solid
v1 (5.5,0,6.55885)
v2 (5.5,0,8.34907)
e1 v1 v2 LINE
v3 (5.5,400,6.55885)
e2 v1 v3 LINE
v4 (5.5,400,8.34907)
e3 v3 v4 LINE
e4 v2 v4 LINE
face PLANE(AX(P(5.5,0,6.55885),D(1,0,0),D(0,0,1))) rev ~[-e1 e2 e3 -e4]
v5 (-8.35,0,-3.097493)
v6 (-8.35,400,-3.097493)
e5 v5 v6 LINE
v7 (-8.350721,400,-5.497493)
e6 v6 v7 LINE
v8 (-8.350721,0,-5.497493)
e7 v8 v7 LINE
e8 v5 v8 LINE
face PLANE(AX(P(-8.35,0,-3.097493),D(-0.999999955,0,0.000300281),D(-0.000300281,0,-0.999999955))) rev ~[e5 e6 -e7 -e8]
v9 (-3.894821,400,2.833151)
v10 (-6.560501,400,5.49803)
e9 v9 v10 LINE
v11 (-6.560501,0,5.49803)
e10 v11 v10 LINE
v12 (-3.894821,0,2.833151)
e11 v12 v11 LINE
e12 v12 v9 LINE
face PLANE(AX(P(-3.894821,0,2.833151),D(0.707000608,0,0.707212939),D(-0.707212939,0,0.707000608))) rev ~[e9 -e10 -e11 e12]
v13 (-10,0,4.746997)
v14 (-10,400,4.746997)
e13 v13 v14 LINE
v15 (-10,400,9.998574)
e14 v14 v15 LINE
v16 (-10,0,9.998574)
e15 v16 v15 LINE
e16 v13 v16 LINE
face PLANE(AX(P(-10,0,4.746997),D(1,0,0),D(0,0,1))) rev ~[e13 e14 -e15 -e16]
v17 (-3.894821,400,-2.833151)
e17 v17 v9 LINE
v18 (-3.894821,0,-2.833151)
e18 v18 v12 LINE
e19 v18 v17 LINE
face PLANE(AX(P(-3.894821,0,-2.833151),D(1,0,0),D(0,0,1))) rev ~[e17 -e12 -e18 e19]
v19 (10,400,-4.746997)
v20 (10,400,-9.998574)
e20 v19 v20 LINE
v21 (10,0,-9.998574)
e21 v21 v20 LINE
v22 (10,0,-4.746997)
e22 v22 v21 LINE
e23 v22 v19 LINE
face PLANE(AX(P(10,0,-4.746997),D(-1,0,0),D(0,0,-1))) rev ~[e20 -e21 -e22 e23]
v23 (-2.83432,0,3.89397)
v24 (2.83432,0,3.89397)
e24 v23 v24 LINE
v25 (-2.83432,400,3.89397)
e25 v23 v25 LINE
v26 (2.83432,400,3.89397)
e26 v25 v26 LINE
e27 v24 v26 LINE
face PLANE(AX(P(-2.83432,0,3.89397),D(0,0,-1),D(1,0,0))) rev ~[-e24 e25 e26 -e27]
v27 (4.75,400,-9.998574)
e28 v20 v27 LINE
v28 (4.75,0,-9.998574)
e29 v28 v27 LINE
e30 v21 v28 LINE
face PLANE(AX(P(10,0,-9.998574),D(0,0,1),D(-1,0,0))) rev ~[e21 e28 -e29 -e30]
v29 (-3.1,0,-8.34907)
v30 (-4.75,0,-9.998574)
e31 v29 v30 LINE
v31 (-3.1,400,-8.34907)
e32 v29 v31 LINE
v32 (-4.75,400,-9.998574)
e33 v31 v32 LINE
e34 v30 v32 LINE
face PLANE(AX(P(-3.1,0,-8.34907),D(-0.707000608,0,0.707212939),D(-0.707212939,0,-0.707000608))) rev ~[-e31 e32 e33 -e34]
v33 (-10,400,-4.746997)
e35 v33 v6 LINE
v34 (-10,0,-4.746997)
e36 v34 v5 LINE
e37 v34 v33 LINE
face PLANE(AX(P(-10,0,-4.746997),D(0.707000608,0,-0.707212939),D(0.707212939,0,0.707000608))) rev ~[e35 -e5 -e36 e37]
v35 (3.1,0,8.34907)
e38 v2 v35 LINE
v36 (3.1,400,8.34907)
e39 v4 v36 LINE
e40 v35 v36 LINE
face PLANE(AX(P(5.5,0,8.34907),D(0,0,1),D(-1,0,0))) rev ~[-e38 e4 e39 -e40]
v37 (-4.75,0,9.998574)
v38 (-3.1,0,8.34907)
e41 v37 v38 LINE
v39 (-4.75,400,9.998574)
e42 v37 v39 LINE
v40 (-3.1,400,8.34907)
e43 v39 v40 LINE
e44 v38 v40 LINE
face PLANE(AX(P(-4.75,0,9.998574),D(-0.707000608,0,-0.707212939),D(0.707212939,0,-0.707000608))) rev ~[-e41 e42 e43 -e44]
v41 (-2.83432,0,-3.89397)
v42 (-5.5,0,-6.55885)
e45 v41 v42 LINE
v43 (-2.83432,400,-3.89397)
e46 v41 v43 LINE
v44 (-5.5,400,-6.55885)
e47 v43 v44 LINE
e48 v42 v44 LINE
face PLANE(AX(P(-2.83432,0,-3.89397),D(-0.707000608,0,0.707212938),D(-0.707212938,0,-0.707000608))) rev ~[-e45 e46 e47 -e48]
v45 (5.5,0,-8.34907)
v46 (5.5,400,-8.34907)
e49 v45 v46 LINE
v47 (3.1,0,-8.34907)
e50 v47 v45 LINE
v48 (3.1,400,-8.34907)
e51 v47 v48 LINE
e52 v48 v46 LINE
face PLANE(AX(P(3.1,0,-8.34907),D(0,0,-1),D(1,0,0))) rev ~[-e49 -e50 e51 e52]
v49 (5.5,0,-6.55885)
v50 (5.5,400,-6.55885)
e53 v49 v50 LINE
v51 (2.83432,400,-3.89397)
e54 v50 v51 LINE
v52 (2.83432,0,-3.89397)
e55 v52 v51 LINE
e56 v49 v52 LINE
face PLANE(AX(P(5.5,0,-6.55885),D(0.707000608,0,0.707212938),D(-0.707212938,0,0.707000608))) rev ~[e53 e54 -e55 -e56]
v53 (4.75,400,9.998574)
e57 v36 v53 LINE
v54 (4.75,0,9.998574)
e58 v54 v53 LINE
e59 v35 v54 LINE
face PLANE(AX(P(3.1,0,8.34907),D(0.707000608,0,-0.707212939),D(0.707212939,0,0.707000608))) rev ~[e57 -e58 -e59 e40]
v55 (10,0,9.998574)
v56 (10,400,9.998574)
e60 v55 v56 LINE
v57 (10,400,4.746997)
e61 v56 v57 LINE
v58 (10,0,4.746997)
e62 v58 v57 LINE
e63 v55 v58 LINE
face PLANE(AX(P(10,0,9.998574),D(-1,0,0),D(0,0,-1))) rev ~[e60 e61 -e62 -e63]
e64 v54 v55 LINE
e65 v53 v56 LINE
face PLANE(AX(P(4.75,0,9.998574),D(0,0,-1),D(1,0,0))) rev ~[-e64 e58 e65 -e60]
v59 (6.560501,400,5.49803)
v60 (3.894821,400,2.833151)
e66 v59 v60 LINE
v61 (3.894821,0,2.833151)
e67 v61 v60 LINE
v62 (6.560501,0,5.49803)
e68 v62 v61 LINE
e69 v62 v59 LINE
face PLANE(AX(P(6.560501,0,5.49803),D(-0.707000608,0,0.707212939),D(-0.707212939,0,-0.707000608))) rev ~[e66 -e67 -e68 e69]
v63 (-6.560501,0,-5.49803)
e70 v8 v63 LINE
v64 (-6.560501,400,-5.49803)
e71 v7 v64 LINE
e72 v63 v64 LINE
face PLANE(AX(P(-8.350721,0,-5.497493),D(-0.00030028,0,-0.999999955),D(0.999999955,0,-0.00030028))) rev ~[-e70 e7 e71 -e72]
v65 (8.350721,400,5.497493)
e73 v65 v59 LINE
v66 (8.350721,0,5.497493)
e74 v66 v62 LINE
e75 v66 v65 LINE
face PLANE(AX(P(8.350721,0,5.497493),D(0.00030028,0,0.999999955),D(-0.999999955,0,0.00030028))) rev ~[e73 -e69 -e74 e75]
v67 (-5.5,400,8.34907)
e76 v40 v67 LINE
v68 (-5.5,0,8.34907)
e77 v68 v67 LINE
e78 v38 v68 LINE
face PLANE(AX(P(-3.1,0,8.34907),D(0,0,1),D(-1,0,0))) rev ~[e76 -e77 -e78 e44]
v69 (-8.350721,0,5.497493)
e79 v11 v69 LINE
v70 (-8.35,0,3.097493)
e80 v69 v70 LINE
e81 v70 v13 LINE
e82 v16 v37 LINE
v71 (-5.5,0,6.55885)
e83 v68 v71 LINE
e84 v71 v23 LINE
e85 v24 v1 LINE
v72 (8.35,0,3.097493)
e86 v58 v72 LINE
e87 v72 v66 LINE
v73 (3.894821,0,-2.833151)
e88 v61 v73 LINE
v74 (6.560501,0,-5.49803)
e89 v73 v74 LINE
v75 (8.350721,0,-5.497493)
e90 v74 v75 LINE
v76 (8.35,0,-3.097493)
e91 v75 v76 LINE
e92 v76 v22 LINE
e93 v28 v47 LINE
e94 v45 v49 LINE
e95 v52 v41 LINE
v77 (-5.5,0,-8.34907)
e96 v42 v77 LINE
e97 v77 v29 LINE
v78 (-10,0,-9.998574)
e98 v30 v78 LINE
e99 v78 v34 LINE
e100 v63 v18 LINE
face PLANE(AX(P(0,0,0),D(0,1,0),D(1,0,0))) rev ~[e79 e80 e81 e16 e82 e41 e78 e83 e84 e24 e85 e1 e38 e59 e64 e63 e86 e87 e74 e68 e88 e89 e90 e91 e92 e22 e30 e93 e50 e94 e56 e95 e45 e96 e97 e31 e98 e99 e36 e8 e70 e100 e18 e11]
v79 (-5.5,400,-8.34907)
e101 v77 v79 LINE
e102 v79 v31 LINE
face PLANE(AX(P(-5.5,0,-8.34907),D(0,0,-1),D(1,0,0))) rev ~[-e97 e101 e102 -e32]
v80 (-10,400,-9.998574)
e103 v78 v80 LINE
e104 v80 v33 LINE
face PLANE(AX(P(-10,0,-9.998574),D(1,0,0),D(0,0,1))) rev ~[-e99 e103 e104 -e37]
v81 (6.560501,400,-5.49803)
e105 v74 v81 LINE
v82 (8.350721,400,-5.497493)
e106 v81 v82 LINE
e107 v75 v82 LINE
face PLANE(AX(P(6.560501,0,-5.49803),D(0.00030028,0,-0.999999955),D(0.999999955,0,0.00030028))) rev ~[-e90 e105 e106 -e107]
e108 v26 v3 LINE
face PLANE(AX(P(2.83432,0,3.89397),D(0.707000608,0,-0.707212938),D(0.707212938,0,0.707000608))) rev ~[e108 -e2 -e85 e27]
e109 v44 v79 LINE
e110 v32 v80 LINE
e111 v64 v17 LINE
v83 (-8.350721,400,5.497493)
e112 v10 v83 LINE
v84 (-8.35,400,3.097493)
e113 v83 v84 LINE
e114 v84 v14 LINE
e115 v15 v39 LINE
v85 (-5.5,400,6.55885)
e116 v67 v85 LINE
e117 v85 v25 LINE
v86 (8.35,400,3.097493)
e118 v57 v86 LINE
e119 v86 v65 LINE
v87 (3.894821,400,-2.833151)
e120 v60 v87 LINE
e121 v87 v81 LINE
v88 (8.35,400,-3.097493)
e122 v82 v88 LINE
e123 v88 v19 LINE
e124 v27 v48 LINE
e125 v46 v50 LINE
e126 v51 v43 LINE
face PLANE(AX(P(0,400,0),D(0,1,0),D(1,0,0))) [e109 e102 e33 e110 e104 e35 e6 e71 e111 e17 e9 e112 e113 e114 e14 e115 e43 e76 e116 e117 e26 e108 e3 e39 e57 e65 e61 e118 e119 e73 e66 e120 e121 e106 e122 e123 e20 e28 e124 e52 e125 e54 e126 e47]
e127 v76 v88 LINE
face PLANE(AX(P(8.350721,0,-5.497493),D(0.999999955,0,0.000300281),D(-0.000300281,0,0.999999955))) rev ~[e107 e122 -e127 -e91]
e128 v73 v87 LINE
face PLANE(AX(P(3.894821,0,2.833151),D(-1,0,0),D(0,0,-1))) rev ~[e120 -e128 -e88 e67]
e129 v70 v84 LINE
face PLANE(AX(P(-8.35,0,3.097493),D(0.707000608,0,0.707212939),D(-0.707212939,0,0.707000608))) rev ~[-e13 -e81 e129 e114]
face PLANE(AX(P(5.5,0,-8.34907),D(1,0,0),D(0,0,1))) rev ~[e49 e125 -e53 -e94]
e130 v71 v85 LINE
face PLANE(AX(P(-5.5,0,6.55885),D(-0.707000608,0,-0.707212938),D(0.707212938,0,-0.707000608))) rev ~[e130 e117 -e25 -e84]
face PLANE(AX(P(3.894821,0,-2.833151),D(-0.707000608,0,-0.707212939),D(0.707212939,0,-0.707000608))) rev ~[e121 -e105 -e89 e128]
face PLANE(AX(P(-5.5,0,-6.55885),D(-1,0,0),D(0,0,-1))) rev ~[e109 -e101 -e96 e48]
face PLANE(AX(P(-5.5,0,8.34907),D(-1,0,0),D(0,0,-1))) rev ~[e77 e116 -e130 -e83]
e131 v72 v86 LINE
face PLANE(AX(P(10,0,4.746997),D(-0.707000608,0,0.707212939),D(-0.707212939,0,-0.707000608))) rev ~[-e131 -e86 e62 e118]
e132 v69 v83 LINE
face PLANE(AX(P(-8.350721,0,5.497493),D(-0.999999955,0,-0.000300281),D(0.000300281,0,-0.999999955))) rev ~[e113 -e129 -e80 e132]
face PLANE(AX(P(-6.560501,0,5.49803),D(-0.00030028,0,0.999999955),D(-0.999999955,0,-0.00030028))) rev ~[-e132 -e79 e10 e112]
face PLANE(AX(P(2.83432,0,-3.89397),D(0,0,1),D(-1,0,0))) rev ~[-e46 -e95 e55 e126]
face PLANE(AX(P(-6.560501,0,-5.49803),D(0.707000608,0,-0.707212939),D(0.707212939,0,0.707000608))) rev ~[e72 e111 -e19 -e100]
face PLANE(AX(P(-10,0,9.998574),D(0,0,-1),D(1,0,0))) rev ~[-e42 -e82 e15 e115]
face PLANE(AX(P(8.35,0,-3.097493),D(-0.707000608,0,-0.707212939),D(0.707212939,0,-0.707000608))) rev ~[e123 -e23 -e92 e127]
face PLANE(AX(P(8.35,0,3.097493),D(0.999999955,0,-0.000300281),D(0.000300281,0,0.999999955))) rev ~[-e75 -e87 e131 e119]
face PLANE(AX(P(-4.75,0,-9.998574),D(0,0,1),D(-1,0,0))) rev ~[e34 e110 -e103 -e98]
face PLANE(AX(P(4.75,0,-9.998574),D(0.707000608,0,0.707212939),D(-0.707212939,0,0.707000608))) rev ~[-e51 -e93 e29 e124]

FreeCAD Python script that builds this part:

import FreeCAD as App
import Part
import Sketcher

V = App.Vector


def add_polygon(sketch, points):
    """Adds a closed chain of lines whose ends are joined by coincident constraints."""
    first, n = sketch.GeometryCount, len(points)
    for a, b in zip(points, points[1:] + points[:1]):
        sketch.addGeometry(Part.LineSegment(App.Vector(*a, 0), App.Vector(*b, 0)), False)
    for i in range(n):
        sketch.addConstraint(Sketcher.Constraint("Coincident", first + i, 2, first + (i + 1) % n, 1))

doc = App.newDocument("Part")
params = doc.addObject("Spreadsheet::Sheet", "Params")
for row, (alias, value) in enumerate([
    ("sketch1_width", "2.4 mm"),
    ("sketch1_length", "2.4 mm"),
    ("sketch1_width2", "5.25 mm"),
    ("pad1_length", "400 mm"),
], start=1):
    params.set(f"A{row}", alias)
    params.set(f"B{row}", "=" + value)
    params.setAlias(f"B{row}", alias)

body = doc.addObject("PartDesign::Body", "Body")

sketch1 = doc.addObject("Sketcher::SketchObject", "Sketch")
body.addObject(sketch1)
sketch1.AttachmentSupport = (doc.XZ_Plane, [""])
sketch1.MapMode = "FlatFace"
add_polygon(sketch1, [(2.83432, -3.89397), (-2.83432, -3.89397), (-5.5, -6.55885), (-5.5, -8.34907), (-3.1, -8.34907), (-4.75, -9.998574), (-10, -9.998574), (-10, -4.746997), (-8.35, -3.097493), (-8.350721, -5.497493), (-6.560501, -5.49803), (-3.894821, -2.833151), (-3.894821, 2.833151), (-6.560501, 5.49803), (-8.350721, 5.497493), (-8.35, 3.097493), (-10, 4.746997), (-10, 9.998574), (-4.75, 9.998574), (-3.1, 8.34907), (-5.5, 8.34907), (-5.5, 6.55885), (-2.83432, 3.89397), (2.83432, 3.89397), (5.5, 6.55885), (5.5, 8.34907), (3.1, 8.34907), (4.75, 9.998574), (10, 9.998574), (10, 4.746997), (8.35, 3.097493), (8.350721, 5.497493), (6.560501, 5.49803), (3.894821, 2.833151), (3.894821, -2.833151), (6.560501, -5.49803), (8.350721, -5.497493), (8.35, -3.097493), (10, -4.746997), (10, -9.998574), (4.75, -9.998574), (3.1, -8.34907), (5.5, -8.34907), (5.5, -6.55885)])
sketch1.addConstraint(Sketcher.Constraint("Horizontal", 0))
sketch1.addConstraint(Sketcher.Constraint("Vertical", 2))
sketch1.addConstraint(Sketcher.Constraint("Horizontal", 3))
sketch1.addConstraint(Sketcher.Constraint("Horizontal", 5))
sketch1.addConstraint(Sketcher.Constraint("Vertical", 6))
sketch1.addConstraint(Sketcher.Constraint("Vertical", 11))
sketch1.addConstraint(Sketcher.Constraint("Vertical", 16))
sketch1.addConstraint(Sketcher.Constraint("Horizontal", 17))
sketch1.addConstraint(Sketcher.Constraint("Horizontal", 19))
sketch1.addConstraint(Sketcher.Constraint("Vertical", 20))
sketch1.addConstraint(Sketcher.Constraint("Horizontal", 22))
sketch1.addConstraint(Sketcher.Constraint("Vertical", 24))
sketch1.addConstraint(Sketcher.Constraint("Horizontal", 25))
sketch1.addConstraint(Sketcher.Constraint("Horizontal", 27))
sketch1.addConstraint(Sketcher.Constraint("Vertical", 28))
sketch1.addConstraint(Sketcher.Constraint("Vertical", 33))
sketch1.addConstraint(Sketcher.Constraint("Vertical", 38))
sketch1.addConstraint(Sketcher.Constraint("Horizontal", 39))
sketch1.addConstraint(Sketcher.Constraint("Horizontal", 41))
sketch1.addConstraint(Sketcher.Constraint("Vertical", 42))
sketch1.addConstraint(Sketcher.Constraint("Symmetric", 0, 2, 22, 2, -1, 1))
sketch1.addConstraint(Sketcher.Constraint("Symmetric", 1, 2, 23, 2, -1, 1))
sketch1.addConstraint(Sketcher.Constraint("Symmetric", 3, 2, 25, 2, -1, 1))
sketch1.addConstraint(Sketcher.Constraint("Symmetric", 4, 2, 26, 2, -1, 1))
sketch1.addConstraint(Sketcher.Constraint("Symmetric", 6, 2, 28, 2, -1, 1))
sketch1.addConstraint(Sketcher.Constraint("Symmetric", 7, 2, 29, 2, -1, 1))
sketch1.addConstraint(Sketcher.Constraint("Symmetric", 8, 2, 30, 2, -1, 1))
sketch1.addConstraint(Sketcher.Constraint("Symmetric", 9, 2, 31, 2, -1, 1))
sketch1.addConstraint(Sketcher.Constraint("Symmetric", 10, 2, 32, 2, -1, 1))
sketch1.addConstraint(Sketcher.Constraint("Symmetric", 12, 2, 34, 2, -1, 1))
sketch1.addConstraint(Sketcher.Constraint("Symmetric", 13, 2, 35, 2, -1, 1))
sketch1.addConstraint(Sketcher.Constraint("Symmetric", 14, 2, 36, 2, -1, 1))
sketch1.addConstraint(Sketcher.Constraint("Symmetric", 15, 2, 37, 2, -1, 1))
sketch1.addConstraint(Sketcher.Constraint("Symmetric", 17, 2, 39, 2, -1, 1))
sketch1.addConstraint(Sketcher.Constraint("Symmetric", 18, 2, 40, 2, -1, 1))
sketch1.addConstraint(Sketcher.Constraint("Symmetric", 20, 2, 42, 2, -1, 1))
sketch1.addConstraint(Sketcher.Constraint("Symmetric", 20, 2, 23, 2, -2))
sketch1.addConstraint(Sketcher.Constraint("Symmetric", 18, 2, 25, 2, -2))
sketch1.addConstraint(Sketcher.Constraint("Symmetric", 17, 2, 26, 2, -2))
sketch1.addConstraint(Sketcher.Constraint("Symmetric", 15, 2, 28, 2, -2))
sketch1.addConstraint(Sketcher.Constraint("Symmetric", 14, 2, 29, 2, -2))
sketch1.addConstraint(Sketcher.Constraint("Symmetric", 13, 2, 30, 2, -2))
sketch1.addConstraint(Sketcher.Constraint("Symmetric", 12, 2, 31, 2, -2))
sketch1.addConstraint(Sketcher.Constraint("Parallel", 1, 4))
sketch1.addConstraint(Sketcher.Constraint("Parallel", 4, 7))
sketch1.addConstraint(Sketcher.Constraint("Perpendicular", 8, 9))
sketch1.addConstraint(Sketcher.Constraint("Parallel", 7, 10))
sketch1.addConstraint(Sketcher.Constraint("Parallel", 12, 15))
sketch1.addConstraint(Sketcher.Constraint("Parallel", 18, 21))
sketch1.addConstraint(Sketcher.Constraint("Parallel", 21, 34))
sketch1.addConstraint(Sketcher.Constraint("Parallel", 40, 43))
sketch1.addConstraint(Sketcher.Constraint("Equal", 4, 7))
sketch1.addConstraint(Sketcher.Constraint("Equal", 1, 10))
sketch1.addConstraint(Sketcher.Constraint("DistanceX", 3, 1, 3, 2, 2.4))
sketch1.addConstraint(Sketcher.Constraint("DistanceX", 5, 2, -1, 1, 10.0))
sketch1.addConstraint(Sketcher.Constraint("Distance", 8, 2.4))
sketch1.addConstraint(Sketcher.Constraint("DistanceX", 5, 2, 5, 1, 5.25))
sketch1.addConstraint(Sketcher.Constraint("DistanceX", 1, 2, -1, 1, 5.5))
sketch1.addConstraint(Sketcher.Constraint("DistanceY", 11, 1, 11, 2, 5.666302))
sketch1.addConstraint(Sketcher.Constraint("DistanceY", 0, 2, 12, 2, 9.392001))
sketch1.addConstraint(Sketcher.Constraint("DistanceX", 0, 2, 0, 1, 5.668641))
sketch1.addConstraint(Sketcher.Constraint("DistanceY", 2, 2, 2, 1, 1.79022))
sketch1.addConstraint(Sketcher.Constraint("DistanceX", 9, 2, -1, 1, 6.560501))
sketch1.addConstraint(Sketcher.Constraint("DistanceY", 2, 2, 0, 2, 4.455099))
sketch1.addConstraint(Sketcher.Constraint("DistanceX", 8, 2, 10, 2, 4.455899))
sketch1.setExpression("Constraints[97]", "Params.sketch1_width")
sketch1.setExpression("Constraints[99]", "Params.sketch1_length")
sketch1.setExpression("Constraints[100]", "Params.sketch1_width2")
pad1 = doc.addObject("PartDesign::Pad", "Pad")
body.addObject(pad1)
pad1.Profile = sketch1
pad1.setExpression("Length", "Params.pad1_length")
pad1.Reversed = True

doc.recompute()
